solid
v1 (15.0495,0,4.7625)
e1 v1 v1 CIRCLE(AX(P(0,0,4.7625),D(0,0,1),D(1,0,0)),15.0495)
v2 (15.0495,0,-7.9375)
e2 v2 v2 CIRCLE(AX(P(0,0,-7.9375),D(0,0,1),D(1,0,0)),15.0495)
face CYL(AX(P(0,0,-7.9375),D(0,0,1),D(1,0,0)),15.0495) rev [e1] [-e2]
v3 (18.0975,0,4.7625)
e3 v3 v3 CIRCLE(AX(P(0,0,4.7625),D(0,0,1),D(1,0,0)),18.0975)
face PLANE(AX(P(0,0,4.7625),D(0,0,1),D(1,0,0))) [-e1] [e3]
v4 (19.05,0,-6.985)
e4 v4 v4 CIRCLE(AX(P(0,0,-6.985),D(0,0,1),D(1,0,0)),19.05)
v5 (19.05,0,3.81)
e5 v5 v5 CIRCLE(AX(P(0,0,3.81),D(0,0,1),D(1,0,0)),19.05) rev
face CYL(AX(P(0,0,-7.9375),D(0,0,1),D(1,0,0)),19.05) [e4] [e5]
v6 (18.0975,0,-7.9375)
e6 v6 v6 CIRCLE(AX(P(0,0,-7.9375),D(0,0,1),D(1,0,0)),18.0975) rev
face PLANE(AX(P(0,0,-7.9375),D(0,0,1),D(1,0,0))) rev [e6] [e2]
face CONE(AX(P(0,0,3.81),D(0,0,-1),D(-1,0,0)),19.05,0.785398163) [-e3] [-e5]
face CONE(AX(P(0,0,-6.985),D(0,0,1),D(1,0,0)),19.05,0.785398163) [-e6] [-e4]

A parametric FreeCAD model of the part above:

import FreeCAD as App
import Part
import Sketcher
from FreeCAD import Vector
Q = App.Units.Quantity


def edges_at(feature, points):
    """Names of the edges that pass closest to the given points."""
    edges = feature.Shape.Edges
    near = lambda p: min(range(len(edges)), key=lambda i: edges[i].distToShape(Part.Vertex(*p))[0])
    return sorted({f"Edge{near(p) + 1}" for p in points})

doc = App.newDocument("Part")
body = doc.addObject("PartDesign::Body", "Body")

# Sketch on XY plane
sketch1 = body.newObject("Sketcher::SketchObject", "Sketch")
sketch1.AttachmentSupport = (doc.getObject("XY_Plane"), [""])
sketch1.MapMode = "FlatFace"
sketch1.addGeometry(Part.Circle(Vector(0, 0, 0), Vector(0, 0, 1), 19.05), False)
sketch1.addGeometry(Part.Circle(Vector(0, 0, 0), Vector(0, 0, 1), 9.525), False)
sketch1.addConstraint(Sketcher.Constraint("Coincident", 0, 3, -1, 1))
sketch1.addConstraint(Sketcher.Constraint("Coincident", 1, 3, -1, 1))
sketch1.addConstraint(Sketcher.Constraint("Diameter", 0, Q("1.5 in")))
sketch1.addConstraint(Sketcher.Constraint("Diameter", 1, Q("0.75 in")))
pad1 = body.newObject("PartDesign::Pad", "Pad")
pad1.Profile = sketch1
pad1.Type = "TwoLengths"
pad1.Length = Q("0.3125 in")
pad1.Length2 = Q("0.3125 in")
doc.recompute()

chamfer = body.newObject("PartDesign::Chamfer", "Chamfer")
chamfer.Base = (pad1, edges_at(pad1, [
    (-19.05, 0, -7.938),
    (-9.525, 0, -7.938),
    (-19.05, 0, 7.938),
    (-9.525, 0, 7.938),
]))
chamfer.Size = Q("0.0375 in")

# Sketch on XY plane
sketch2 = body.newObject("Sketcher::SketchObject", "Sketch001")
sketch2.AttachmentSupport = (doc.getObject("XY_Plane"), [""])
sketch2.MapMode = "FlatFace"
sketch2.AttachmentOffset = App.Placement(Vector(0, 0, 0.3125 * 25.4), App.Rotation())
sketch2.addGeometry(Part.Circle(Vector(0, 0, 0), Vector(0, 0, 1), 19.05), False)
sketch2.addConstraint(Sketcher.Constraint("Coincident", 0, 3, -1, 1))
sketch2.addConstraint(Sketcher.Constraint("Diameter", 0, Q("1.5 in")))
pocket1 = body.newObject("PartDesign::Pocket", "Pocket")
pocket1.Profile = sketch2
pocket1.Length = Q("0.125 in")

# Sketch on XY plane
sketch3 = body.newObject("Sketcher::SketchObject", "Sketch002")
sketch3.AttachmentSupport = (doc.getObject("XY_Plane"), [""])
sketch3.MapMode = "FlatFace"
sketch3.AttachmentOffset = App.Placement(Vector(0, 0, 0.1875 * 25.4), App.Rotation())
sketch3.addGeometry(Part.Circle(Vector(0, 0, 0), Vector(0, 0, 1), 15.0495), False)
sketch3.addConstraint(Sketcher.Constraint("Coincident", 0, 3, -1, 1))
sketch3.addConstraint(Sketcher.Constraint("Diameter", 0, Q("1.185 in")))
pocket2 = body.newObject("PartDesign::Pocket", "Pocket001")
pocket2.Profile = sketch3
pocket2.Type = "ThroughAll"
doc.recompute()

chamfer2 = body.newObject("PartDesign::Chamfer", "Chamfer001")
chamfer2.Base = (pocket2, edges_at(pocket2, [(-19.05, 0, 4.763)]))
chamfer2.Size = Q("0.0375 in")

doc.recompute()
